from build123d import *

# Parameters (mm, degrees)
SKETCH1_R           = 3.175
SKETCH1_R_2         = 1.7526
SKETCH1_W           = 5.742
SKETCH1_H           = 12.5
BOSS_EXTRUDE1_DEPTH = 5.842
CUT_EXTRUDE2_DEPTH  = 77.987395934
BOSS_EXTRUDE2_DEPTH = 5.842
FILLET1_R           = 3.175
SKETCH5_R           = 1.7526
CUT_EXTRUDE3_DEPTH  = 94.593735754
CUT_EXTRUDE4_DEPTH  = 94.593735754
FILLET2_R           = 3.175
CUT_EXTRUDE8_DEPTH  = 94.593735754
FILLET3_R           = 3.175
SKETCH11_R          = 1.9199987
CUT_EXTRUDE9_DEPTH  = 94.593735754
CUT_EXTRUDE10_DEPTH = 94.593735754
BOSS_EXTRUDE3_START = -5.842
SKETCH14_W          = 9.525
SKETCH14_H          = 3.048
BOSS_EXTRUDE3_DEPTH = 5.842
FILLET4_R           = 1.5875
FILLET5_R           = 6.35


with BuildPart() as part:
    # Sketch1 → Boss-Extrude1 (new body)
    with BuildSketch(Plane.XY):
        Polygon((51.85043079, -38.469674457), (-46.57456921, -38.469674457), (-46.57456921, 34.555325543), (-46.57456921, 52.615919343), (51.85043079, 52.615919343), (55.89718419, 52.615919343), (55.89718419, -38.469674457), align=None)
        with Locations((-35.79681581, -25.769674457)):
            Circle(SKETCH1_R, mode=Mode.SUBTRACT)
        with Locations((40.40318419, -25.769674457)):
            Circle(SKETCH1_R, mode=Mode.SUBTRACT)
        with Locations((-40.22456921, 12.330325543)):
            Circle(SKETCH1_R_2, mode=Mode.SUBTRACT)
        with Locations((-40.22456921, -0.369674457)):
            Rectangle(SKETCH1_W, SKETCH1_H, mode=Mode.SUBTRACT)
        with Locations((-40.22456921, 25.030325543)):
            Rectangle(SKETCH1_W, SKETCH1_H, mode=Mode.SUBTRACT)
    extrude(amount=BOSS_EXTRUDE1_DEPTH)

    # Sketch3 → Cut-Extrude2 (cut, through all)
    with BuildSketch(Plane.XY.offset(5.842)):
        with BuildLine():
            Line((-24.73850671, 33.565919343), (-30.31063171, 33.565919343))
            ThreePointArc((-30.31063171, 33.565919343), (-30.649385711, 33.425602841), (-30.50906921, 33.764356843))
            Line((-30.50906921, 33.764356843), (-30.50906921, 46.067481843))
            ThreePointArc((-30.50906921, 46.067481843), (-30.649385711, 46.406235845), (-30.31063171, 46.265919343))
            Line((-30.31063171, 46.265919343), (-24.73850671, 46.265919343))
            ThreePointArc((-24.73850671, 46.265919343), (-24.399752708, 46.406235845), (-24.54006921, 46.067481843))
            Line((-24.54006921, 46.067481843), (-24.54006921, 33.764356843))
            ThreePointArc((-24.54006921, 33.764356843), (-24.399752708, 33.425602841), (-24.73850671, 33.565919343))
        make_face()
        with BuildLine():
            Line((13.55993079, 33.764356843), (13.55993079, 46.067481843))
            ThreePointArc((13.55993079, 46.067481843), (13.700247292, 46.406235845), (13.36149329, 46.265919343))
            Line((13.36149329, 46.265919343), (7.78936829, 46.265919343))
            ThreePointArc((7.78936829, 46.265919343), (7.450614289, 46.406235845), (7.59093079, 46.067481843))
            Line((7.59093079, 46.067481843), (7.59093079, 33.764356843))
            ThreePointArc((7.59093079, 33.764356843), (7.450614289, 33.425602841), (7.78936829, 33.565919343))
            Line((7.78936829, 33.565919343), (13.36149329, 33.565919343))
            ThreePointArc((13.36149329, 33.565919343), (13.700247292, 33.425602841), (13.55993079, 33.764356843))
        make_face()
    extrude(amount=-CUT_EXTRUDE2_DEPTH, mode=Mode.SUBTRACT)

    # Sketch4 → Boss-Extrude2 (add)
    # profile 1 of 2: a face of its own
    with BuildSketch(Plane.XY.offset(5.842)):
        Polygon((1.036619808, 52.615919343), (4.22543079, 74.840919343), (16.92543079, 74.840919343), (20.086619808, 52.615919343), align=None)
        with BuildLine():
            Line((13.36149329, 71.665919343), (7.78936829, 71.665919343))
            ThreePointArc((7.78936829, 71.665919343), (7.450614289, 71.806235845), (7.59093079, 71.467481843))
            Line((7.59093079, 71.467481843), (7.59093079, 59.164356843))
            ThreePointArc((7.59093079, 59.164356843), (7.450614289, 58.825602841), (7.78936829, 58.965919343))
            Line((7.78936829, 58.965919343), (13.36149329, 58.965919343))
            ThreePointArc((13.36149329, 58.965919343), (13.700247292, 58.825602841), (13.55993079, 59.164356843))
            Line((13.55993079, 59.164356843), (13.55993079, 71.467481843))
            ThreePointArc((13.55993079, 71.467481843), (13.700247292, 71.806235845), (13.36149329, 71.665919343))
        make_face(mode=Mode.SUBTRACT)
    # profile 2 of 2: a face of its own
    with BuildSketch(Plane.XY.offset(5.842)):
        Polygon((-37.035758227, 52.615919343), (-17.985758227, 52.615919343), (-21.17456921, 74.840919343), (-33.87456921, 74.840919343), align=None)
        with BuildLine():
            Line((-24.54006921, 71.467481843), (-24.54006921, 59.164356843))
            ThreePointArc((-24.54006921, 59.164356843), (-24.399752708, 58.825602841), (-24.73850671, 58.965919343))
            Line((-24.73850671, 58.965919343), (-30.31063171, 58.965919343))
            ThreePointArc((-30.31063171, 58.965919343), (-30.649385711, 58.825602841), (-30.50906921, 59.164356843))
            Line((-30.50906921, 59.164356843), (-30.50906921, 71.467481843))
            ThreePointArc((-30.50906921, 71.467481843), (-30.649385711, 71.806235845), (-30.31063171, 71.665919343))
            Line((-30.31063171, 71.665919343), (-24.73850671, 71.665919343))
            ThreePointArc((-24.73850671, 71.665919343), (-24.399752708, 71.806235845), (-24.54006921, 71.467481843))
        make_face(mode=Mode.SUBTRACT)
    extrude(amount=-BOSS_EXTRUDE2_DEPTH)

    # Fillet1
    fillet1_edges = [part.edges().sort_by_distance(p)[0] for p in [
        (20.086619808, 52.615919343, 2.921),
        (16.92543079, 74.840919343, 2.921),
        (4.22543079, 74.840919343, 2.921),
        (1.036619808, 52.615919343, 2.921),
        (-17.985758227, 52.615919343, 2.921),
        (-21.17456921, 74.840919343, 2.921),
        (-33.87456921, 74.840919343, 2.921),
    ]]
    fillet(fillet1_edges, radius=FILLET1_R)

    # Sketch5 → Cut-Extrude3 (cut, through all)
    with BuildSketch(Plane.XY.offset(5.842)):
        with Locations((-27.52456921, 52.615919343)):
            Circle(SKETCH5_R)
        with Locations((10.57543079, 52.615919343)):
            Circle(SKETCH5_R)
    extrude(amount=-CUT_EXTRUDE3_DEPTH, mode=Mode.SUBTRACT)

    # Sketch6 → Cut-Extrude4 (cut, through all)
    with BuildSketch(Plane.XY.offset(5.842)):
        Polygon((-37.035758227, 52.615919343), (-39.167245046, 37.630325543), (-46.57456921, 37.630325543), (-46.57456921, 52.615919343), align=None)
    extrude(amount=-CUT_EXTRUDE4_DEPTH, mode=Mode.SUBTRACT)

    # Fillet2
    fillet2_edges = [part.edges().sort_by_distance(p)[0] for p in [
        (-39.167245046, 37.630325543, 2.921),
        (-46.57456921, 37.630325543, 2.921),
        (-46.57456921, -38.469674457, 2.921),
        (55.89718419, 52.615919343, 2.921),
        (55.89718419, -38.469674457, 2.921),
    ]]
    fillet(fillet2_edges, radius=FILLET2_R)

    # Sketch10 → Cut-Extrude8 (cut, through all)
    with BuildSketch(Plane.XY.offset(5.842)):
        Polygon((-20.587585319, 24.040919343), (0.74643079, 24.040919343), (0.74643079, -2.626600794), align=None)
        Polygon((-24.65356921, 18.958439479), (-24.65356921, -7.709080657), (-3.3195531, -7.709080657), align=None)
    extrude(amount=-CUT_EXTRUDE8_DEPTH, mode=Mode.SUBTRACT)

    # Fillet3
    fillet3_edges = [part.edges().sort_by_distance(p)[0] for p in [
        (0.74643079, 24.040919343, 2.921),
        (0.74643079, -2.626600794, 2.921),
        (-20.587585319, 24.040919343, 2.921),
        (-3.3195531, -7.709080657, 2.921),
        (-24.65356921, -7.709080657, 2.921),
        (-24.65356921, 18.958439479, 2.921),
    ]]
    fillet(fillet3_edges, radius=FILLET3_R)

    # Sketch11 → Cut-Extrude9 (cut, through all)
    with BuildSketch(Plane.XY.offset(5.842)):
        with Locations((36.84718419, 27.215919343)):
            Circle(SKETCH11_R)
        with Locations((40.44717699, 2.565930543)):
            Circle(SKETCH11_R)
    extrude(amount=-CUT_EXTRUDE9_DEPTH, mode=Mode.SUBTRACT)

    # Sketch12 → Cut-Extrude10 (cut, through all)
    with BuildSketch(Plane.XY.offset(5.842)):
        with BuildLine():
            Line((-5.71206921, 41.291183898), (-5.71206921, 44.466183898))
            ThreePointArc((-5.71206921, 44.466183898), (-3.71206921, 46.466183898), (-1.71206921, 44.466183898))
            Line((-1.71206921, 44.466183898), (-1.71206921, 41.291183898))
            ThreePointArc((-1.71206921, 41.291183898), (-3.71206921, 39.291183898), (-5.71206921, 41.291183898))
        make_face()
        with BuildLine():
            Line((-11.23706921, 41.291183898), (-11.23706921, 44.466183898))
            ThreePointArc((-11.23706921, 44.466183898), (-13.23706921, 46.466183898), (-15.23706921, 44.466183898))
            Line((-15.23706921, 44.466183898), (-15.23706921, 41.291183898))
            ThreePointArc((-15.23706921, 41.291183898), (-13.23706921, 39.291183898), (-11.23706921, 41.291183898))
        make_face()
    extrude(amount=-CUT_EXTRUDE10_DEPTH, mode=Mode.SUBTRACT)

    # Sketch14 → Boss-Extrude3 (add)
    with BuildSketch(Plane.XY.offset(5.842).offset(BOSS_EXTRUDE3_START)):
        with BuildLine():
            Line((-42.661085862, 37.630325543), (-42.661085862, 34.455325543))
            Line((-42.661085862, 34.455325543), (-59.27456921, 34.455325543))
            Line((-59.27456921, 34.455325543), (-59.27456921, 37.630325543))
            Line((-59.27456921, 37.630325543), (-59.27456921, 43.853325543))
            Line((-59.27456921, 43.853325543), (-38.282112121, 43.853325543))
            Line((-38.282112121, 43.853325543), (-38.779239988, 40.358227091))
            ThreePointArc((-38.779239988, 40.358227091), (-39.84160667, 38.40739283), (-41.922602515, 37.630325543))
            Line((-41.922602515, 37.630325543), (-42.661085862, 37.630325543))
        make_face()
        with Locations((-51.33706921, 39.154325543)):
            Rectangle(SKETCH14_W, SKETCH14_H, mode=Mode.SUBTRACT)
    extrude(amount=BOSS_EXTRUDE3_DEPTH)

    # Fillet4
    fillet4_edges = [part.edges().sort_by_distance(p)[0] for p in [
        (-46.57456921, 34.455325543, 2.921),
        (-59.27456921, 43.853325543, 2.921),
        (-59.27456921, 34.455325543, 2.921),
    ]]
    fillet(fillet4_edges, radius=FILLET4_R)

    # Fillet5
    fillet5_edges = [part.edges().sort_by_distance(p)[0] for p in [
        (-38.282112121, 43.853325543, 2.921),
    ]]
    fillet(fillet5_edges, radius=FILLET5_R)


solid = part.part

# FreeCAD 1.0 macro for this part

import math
import FreeCAD as App
import Part
import Sketcher

V = App.Vector
Q = App.Units.Quantity


def edges_at(feature, points):
    """Names of the edges that pass closest to the given points."""
    edges = feature.Shape.Edges
    near = lambda p: min(range(len(edges)), key=lambda i: edges[i].distToShape(Part.Vertex(*p))[0])
    return sorted({f"Edge{near(p) + 1}" for p in points})


def add_polygon(sketch, points):
    """Adds a closed chain of lines whose ends are joined by coincident constraints."""
    first, n = sketch.GeometryCount, len(points)
    for a, b in zip(points, points[1:] + points[:1]):
        sketch.addGeometry(Part.LineSegment(App.Vector(*a, 0), App.Vector(*b, 0)), False)
    for i in range(n):
        sketch.addConstraint(Sketcher.Constraint("Coincident", first + i, 2, first + (i + 1) % n, 1))

doc = App.newDocument("Part")
body = doc.addObject("PartDesign::Body", "Body")

sketch1 = doc.addObject("Sketcher::SketchObject", "Sketch")
body.addObject(sketch1)
sketch1.AttachmentSupport = (doc.XY_Plane, [""])
sketch1.MapMode = "FlatFace"
add_polygon(sketch1, [(-46.6, -38.5), (55.9, -38.5), (55.9, 52.6), (-46.6, 52.6)])
sketch1.addGeometry(Part.Circle(V(40.4, -25.8, 0), V(0, 0, 1), 3.2), False)
sketch1.addGeometry(Part.Circle(V(-35.8, -25.8, 0), V(0, 0, 1), 3.2), False)
add_polygon(sketch1, [(-43.1, -6.6), (-43.1, 5.9), (-37.4, 5.9), (-37.4, -6.6)])
sketch1.addGeometry(Part.Circle(V(-40.2, 12.3, 0), V(0, 0, 1), 1.8), False)
add_polygon(sketch1, [(-43.1, 18.8), (-43.1, 31.3), (-37.4, 31.3), (-37.4, 18.8)])
sketch1.addConstraint(Sketcher.Constraint("Horizontal", 0))
sketch1.addConstraint(Sketcher.Constraint("Vertical", 1))
sketch1.addConstraint(Sketcher.Constraint("Horizontal", 2))
sketch1.addConstraint(Sketcher.Constraint("Vertical", 3))
sketch1.addConstraint(Sketcher.Constraint("Vertical", 6))
sketch1.addConstraint(Sketcher.Constraint("Horizontal", 7))
sketch1.addConstraint(Sketcher.Constraint("Vertical", 8))
sketch1.addConstraint(Sketcher.Constraint("Horizontal", 9))
sketch1.addConstraint(Sketcher.Constraint("Vertical", 11))
sketch1.addConstraint(Sketcher.Constraint("Horizontal", 12))
sketch1.addConstraint(Sketcher.Constraint("Vertical", 13))
sketch1.addConstraint(Sketcher.Constraint("Horizontal", 14))
sketch1.addConstraint(Sketcher.Constraint("Equal", 4, 5))
sketch1.addConstraint(Sketcher.Constraint("Horizontal", 4, 3, 5, 3))
sketch1.addConstraint(Sketcher.Constraint("Vertical", 9, 2, 11, 2))
sketch1.addConstraint(Sketcher.Constraint("Vertical", 8, 2, 12, 2))
sketch1.addConstraint(Sketcher.Constraint("Equal", 8, 11))
sketch1.addConstraint(Sketcher.Constraint("Diameter", 4, Q("0.25 in")))
sketch1.addConstraint(Sketcher.Constraint("Diameter", 10, Q("0.138 in")))
sketch1.addConstraint(Sketcher.Constraint("DistanceX", 5, 3, 4, 3, Q("3 in")))
sketch1.addConstraint(Sketcher.Constraint("DistanceY", 0, 2, 10, 3, Q("2 in")))
sketch1.addConstraint(Sketcher.Constraint("DistanceY", 6, 2, 11, 2, Q("1 in")))
sketch1.addConstraint(Sketcher.Constraint("DistanceY", 5, 3, 10, 3, Q("1.5 in")))
sketch1.addConstraint(Sketcher.Constraint("DistanceX", 4, 3, 0, 2, Q("0.61 in")))
sketch1.addConstraint(Sketcher.Constraint("DistanceX", 2, 2, 10, 3, Q("0.25 in")))
sketch1.addConstraint(Sketcher.Constraint("DistanceX", 7, 1, 7, 2, Q("5.742 mm")))
sketch1.addConstraint(Sketcher.Constraint("DistanceY", 6, 1, 6, 2, Q("12.5 mm")))
sketch1.addConstraint(Sketcher.Constraint("DistanceX", 6, 2, 10, 3, Q("2.871 mm")))
sketch1.addConstraint(Sketcher.Constraint("DistanceY", 6, 2, 10, 3, Q("6.45 mm")))
sketch1.addConstraint(Sketcher.Constraint("DistanceX", 0, 1, 0, 2, Q("102.471753 mm")))
sketch1.addConstraint(Sketcher.Constraint("DistanceY", 1, 1, 1, 2, Q("91.085594 mm")))
sketch1.addConstraint(Sketcher.Constraint("DistanceX", 10, 3, -1, 1, Q("40.224569 mm")))
sketch1.addConstraint(Sketcher.Constraint("DistanceY", -1, 1, 1, 2, Q("52.615919 mm")))
pad1 = doc.addObject("PartDesign::Pad", "Pad")
body.addObject(pad1)
pad1.Profile = sketch1
pad1.Length = Q("0.23 in")

sketch2 = doc.addObject("Sketcher::SketchObject", "Sketch001")
body.addObject(sketch2)
sketch2.AttachmentSupport = (doc.XY_Plane, [""])
sketch2.MapMode = "FlatFace"
sketch2.AttachmentOffset = App.Placement(V(0, 0, 0.23 * 25.4), App.Rotation())
sketch2.addGeometry(Part.LineSegment(V(-30.31, 33.57, 0), V(-24.74, 33.57, 0)), False)
sketch2.addGeometry(Part.ArcOfCircle(Part.Circle(V(-24.54, 33.57, 0), V(0, 0, 1), 0.2), math.radians(180), math.radians(450)), False)
sketch2.addGeometry(Part.LineSegment(V(-24.54, 33.76, 0), V(-24.54, 46.07, 0)), False)
sketch2.addGeometry(Part.ArcOfCircle(Part.Circle(V(-24.54, 46.27, 0), V(0, 0, 1), 0.2), math.radians(-90), math.radians(180)), False)
sketch2.addGeometry(Part.LineSegment(V(-24.74, 46.27, 0), V(-30.31, 46.27, 0)), False)
sketch2.addGeometry(Part.ArcOfCircle(Part.Circle(V(-30.51, 46.27, 0), V(0, 0, 1), 0.2), math.radians(0), math.radians(270)), False)
sketch2.addGeometry(Part.LineSegment(V(-30.51, 46.07, 0), V(-30.51, 33.76, 0)), False)
sketch2.addGeometry(Part.ArcOfCircle(Part.Circle(V(-30.51, 33.57, 0), V(0, 0, 1), 0.2), math.radians(90), math.radians(360)), False)
sketch2.addGeometry(Part.LineSegment(V(13.56, 33.76, 0), V(13.56, 46.07, 0)), False)
sketch2.addGeometry(Part.ArcOfCircle(Part.Circle(V(13.56, 46.27, 0), V(0, 0, 1), 0.2), math.radians(-90), math.radians(180)), False)
sketch2.addGeometry(Part.LineSegment(V(13.36, 46.27, 0), V(7.79, 46.27, 0)), False)
sketch2.addGeometry(Part.ArcOfCircle(Part.Circle(V(7.59, 46.27, 0), V(0, 0, 1), 0.2), math.radians(0), math.radians(270)), False)
sketch2.addGeometry(Part.LineSegment(V(7.59, 46.07, 0), V(7.59, 33.76, 0)), False)
sketch2.addGeometry(Part.ArcOfCircle(Part.Circle(V(7.59, 33.57, 0), V(0, 0, 1), 0.2), math.radians(90), math.radians(360)), False)
sketch2.addGeometry(Part.LineSegment(V(7.79, 33.57, 0), V(13.36, 33.57, 0)), False)
sketch2.addGeometry(Part.ArcOfCircle(Part.Circle(V(13.56, 33.57, 0), V(0, 0, 1), 0.2), math.radians(180), math.radians(450)), False)
sketch2.addConstraint(Sketcher.Constraint("Coincident", 0, 2, 1, 1))
sketch2.addConstraint(Sketcher.Constraint("Coincident", 1, 2, 2, 1))
sketch2.addConstraint(Sketcher.Constraint("Coincident", 2, 2, 3, 1))
sketch2.addConstraint(Sketcher.Constraint("Coincident", 3, 2, 4, 1))
sketch2.addConstraint(Sketcher.Constraint("Coincident", 4, 2, 5, 1))
sketch2.addConstraint(Sketcher.Constraint("Coincident", 5, 2, 6, 1))
sketch2.addConstraint(Sketcher.Constraint("Coincident", 6, 2, 7, 1))
sketch2.addConstraint(Sketcher.Constraint("Coincident", 7, 2, 0, 1))
sketch2.addConstraint(Sketcher.Constraint("Coincident", 8, 2, 9, 1))
sketch2.addConstraint(Sketcher.Constraint("Coincident", 9, 2, 10, 1))
sketch2.addConstraint(Sketcher.Constraint("Coincident", 10, 2, 11, 1))
sketch2.addConstraint(Sketcher.Constraint("Coincident", 11, 2, 12, 1))
sketch2.addConstraint(Sketcher.Constraint("Coincident", 12, 2, 13, 1))
sketch2.addConstraint(Sketcher.Constraint("Coincident", 13, 2, 14, 1))
sketch2.addConstraint(Sketcher.Constraint("Coincident", 14, 2, 15, 1))
sketch2.addConstraint(Sketcher.Constraint("Coincident", 15, 2, 8, 1))
sketch2.addConstraint(Sketcher.Constraint("Horizontal", 0))
sketch2.addConstraint(Sketcher.Constraint("Vertical", 2))
sketch2.addConstraint(Sketcher.Constraint("Horizontal", 4))
sketch2.addConstraint(Sketcher.Constraint("Vertical", 6))
sketch2.addConstraint(Sketcher.Constraint("Vertical", 8))
sketch2.addConstraint(Sketcher.Constraint("Horizontal", 10))
sketch2.addConstraint(Sketcher.Constraint("Vertical", 12))
sketch2.addConstraint(Sketcher.Constraint("Horizontal", 14))
sketch2.addConstraint(Sketcher.Constraint("Equal", 1, 3))
sketch2.addConstraint(Sketcher.Constraint("Equal", 3, 5))
sketch2.addConstraint(Sketcher.Constraint("Equal", 5, 7))
sketch2.addConstraint(Sketcher.Constraint("Equal", 7, 9))
sketch2.addConstraint(Sketcher.Constraint("Equal", 9, 11))
sketch2.addConstraint(Sketcher.Constraint("Equal", 11, 13))
sketch2.addConstraint(Sketcher.Constraint("Equal", 13, 15))
sketch2.addConstraint(Sketcher.Constraint("Horizontal", 3, 3, 5, 3))
sketch2.addConstraint(Sketcher.Constraint("Horizontal", 1, 3, 7, 3))
sketch2.addConstraint(Sketcher.Constraint("Horizontal", 5, 3, 9, 3))
sketch2.addConstraint(Sketcher.Constraint("Horizontal", 9, 3, 11, 3))
sketch2.addConstraint(Sketcher.Constraint("Horizontal", 7, 3, 13, 3))
sketch2.addConstraint(Sketcher.Constraint("Horizontal", 13, 3, 15, 3))
sketch2.addConstraint(Sketcher.Constraint("Horizontal", 15, 3, 0, 2))
sketch2.addConstraint(Sketcher.Constraint("Horizontal", 11, 3, 3, 2))
sketch2.addConstraint(Sketcher.Constraint("Horizontal", 4, 2, 9, 2))
sketch2.addConstraint(Sketcher.Constraint("Horizontal", 7, 2, 13, 2))
sketch2.addConstraint(Sketcher.Constraint("Vertical", 1, 3, 3, 3))
sketch2.addConstraint(Sketcher.Constraint("Vertical", 5, 3, 7, 3))
sketch2.addConstraint(Sketcher.Constraint("Vertical", 11, 3, 13, 3))
sketch2.addConstraint(Sketcher.Constraint("Vertical", 9, 3, 15, 3))
sketch2.addConstraint(Sketcher.Constraint("Vertical", 3, 3, 1, 2))
sketch2.addConstraint(Sketcher.Constraint("Vertical", 7, 3, 5, 2))
sketch2.addConstraint(Sketcher.Constraint("Vertical", 15, 3, 8, 2))
sketch2.addConstraint(Sketcher.Constraint("Vertical", 13, 3, 11, 2))
sketch2.addConstraint(Sketcher.Constraint("Equal", 4, 10))
sketch2.addConstraint(Sketcher.Constraint("DistanceY", 1, 3, 3, 3, Q("0.5 in")))
sketch2.addConstraint(Sketcher.Constraint("DistanceX", 3, 3, 9, 3, Q("1.5 in")))
sketch2.addConstraint(Sketcher.Constraint("DistanceY", 2, 1, 2, 2, Q("0.484375 in")))
sketch2.addConstraint(Sketcher.Constraint("DistanceX", 5, 3, 3, 3, Q("0.235 in")))
sketch2.addConstraint(Sketcher.Constraint("DistanceX", 1, 3, -1, 1, Q("24.540069 mm")))
sketch2.addConstraint(Sketcher.Constraint("DistanceY", -1, 1, 1, 3, Q("33.565919 mm")))
pocket1 = doc.addObject("PartDesign::Pocket", "Pocket")
body.addObject(pocket1)
pocket1.Profile = sketch2
pocket1.Type = "ThroughAll"

sketch3 = doc.addObject("Sketcher::SketchObject", "Sketch002")
body.addObject(sketch3)
sketch3.AttachmentSupport = (doc.XY_Plane, [""])
sketch3.MapMode = "FlatFace"
sketch3.AttachmentOffset = App.Placement(V(0, 0, 0.23 * 25.4), App.Rotation())
add_polygon(sketch3, [(4.23, 74.84), (1.04, 52.62), (20.09, 52.62), (16.93, 74.84)])
sketch3.addGeometry(Part.ArcOfCircle(Part.Circle(V(13.56, 71.67, 0), V(0, 0, 1), 0.2), math.radians(-90), math.radians(180)), False)
sketch3.addGeometry(Part.LineSegment(V(13.56, 71.47, 0), V(13.56, 59.16, 0)), False)
sketch3.addGeometry(Part.ArcOfCircle(Part.Circle(V(13.56, 58.97, 0), V(0, 0, 1), 0.2), math.radians(180), math.radians(450)), False)
sketch3.addGeometry(Part.LineSegment(V(13.36, 58.97, 0), V(7.79, 58.97, 0)), False)
sketch3.addGeometry(Part.ArcOfCircle(Part.Circle(V(7.59, 58.97, 0), V(0, 0, 1), 0.2), math.radians(90), math.radians(360)), False)
sketch3.addGeometry(Part.LineSegment(V(7.59, 59.16, 0), V(7.59, 71.47, 0)), False)
sketch3.addGeometry(Part.ArcOfCircle(Part.Circle(V(7.59, 71.67, 0), V(0, 0, 1), 0.2), math.radians(0), math.radians(270)), False)
sketch3.addGeometry(Part.LineSegment(V(7.79, 71.67, 0), V(13.36, 71.67, 0)), False)
add_polygon(sketch3, [(-37.04, 52.62), (-17.99, 52.62), (-21.17, 74.84), (-33.87, 74.84)])
sketch3.addGeometry(Part.ArcOfCircle(Part.Circle(V(-24.54, 71.67, 0), V(0, 0, 1), 0.2), math.radians(-90), math.radians(180)), False)
sketch3.addGeometry(Part.LineSegment(V(-24.54, 71.47, 0), V(-24.54, 59.16, 0)), False)
sketch3.addGeometry(Part.ArcOfCircle(Part.Circle(V(-24.54, 58.97, 0), V(0, 0, 1), 0.2), math.radians(180), math.radians(450)), False)
sketch3.addGeometry(Part.LineSegment(V(-24.74, 58.97, 0), V(-30.31, 58.97, 0)), False)
sketch3.addGeometry(Part.ArcOfCircle(Part.Circle(V(-30.51, 58.97, 0), V(0, 0, 1), 0.2), math.radians(90), math.radians(360)), False)
sketch3.addGeometry(Part.LineSegment(V(-30.51, 59.16, 0), V(-30.51, 71.47, 0)), False)
sketch3.addGeometry(Part.ArcOfCircle(Part.Circle(V(-30.51, 71.67, 0), V(0, 0, 1), 0.2), math.radians(0), math.radians(270)), False)
sketch3.addGeometry(Part.LineSegment(V(-30.31, 71.67, 0), V(-24.74, 71.67, 0)), False)
sketch3.addConstraint(Sketcher.Constraint("Coincident", 4, 1, 5, 1))
sketch3.addConstraint(Sketcher.Constraint("Coincident", 5, 2, 6, 2))
sketch3.addConstraint(Sketcher.Constraint("Coincident", 6, 1, 7, 1))
sketch3.addConstraint(Sketcher.Constraint("Coincident", 7, 2, 8, 2))
sketch3.addConstraint(Sketcher.Constraint("Coincident", 8, 1, 9, 1))
sketch3.addConstraint(Sketcher.Constraint("Coincident", 9, 2, 10, 2))
sketch3.addConstraint(Sketcher.Constraint("Coincident", 10, 1, 11, 1))
sketch3.addConstraint(Sketcher.Constraint("Coincident", 11, 2, 4, 2))
sketch3.addConstraint(Sketcher.Constraint("Coincident", 16, 1, 17, 1))
sketch3.addConstraint(Sketcher.Constraint("Coincident", 17, 2, 18, 2))
sketch3.addConstraint(Sketcher.Constraint("Coincident", 18, 1, 19, 1))
sketch3.addConstraint(Sketcher.Constraint("Coincident", 19, 2, 20, 2))
sketch3.addConstraint(Sketcher.Constraint("Coincident", 20, 1, 21, 1))
sketch3.addConstraint(Sketcher.Constraint("Coincident", 21, 2, 22, 2))
sketch3.addConstraint(Sketcher.Constraint("Coincident", 22, 1, 23, 1))
sketch3.addConstraint(Sketcher.Constraint("Coincident", 23, 2, 16, 2))
sketch3.addConstraint(Sketcher.Constraint("Horizontal", 1))
sketch3.addConstraint(Sketcher.Constraint("Horizontal", 3))
sketch3.addConstraint(Sketcher.Constraint("Vertical", 5))
sketch3.addConstraint(Sketcher.Constraint("Horizontal", 7))
sketch3.addConstraint(Sketcher.Constraint("Vertical", 9))
sketch3.addConstraint(Sketcher.Constraint("Horizontal", 11))
sketch3.addConstraint(Sketcher.Constraint("Horizontal", 12))
sketch3.addConstraint(Sketcher.Constraint("Horizontal", 14))
sketch3.addConstraint(Sketcher.Constraint("Vertical", 17))
sketch3.addConstraint(Sketcher.Constraint("Horizontal", 19))
sketch3.addConstraint(Sketcher.Constraint("Vertical", 21))
sketch3.addConstraint(Sketcher.Constraint("Horizontal", 23))
sketch3.addConstraint(Sketcher.Constraint("Equal", 4, 6))
sketch3.addConstraint(Sketcher.Constraint("Equal", 6, 8))
sketch3.addConstraint(Sketcher.Constraint("Equal", 8, 10))
sketch3.addConstraint(Sketcher.Constraint("Equal", 10, 16))
sketch3.addConstraint(Sketcher.Constraint("Equal", 16, 18))
sketch3.addConstraint(Sketcher.Constraint("Equal", 18, 20))
sketch3.addConstraint(Sketcher.Constraint("Equal", 20, 22))
sketch3.addConstraint(Sketcher.Constraint("Horizontal", 6, 3, 8, 3))
sketch3.addConstraint(Sketcher.Constraint("Horizontal", 4, 3, 10, 3))
sketch3.addConstraint(Sketcher.Constraint("Horizontal", 10, 3, 16, 3))
sketch3.addConstraint(Sketcher.Constraint("Horizontal", 8, 3, 18, 3))
sketch3.addConstraint(Sketcher.Constraint("Horizontal", 18, 3, 20, 3))
sketch3.addConstraint(Sketcher.Constraint("Horizontal", 16, 3, 22, 3))
sketch3.addConstraint(Sketcher.Constraint("Horizontal", 20, 3, 6, 1))
sketch3.addConstraint(Sketcher.Constraint("Horizontal", 22, 3, 10, 1))
sketch3.addConstraint(Sketcher.Constraint("Horizontal", 1, 2, 12, 2))
sketch3.addConstraint(Sketcher.Constraint("Horizontal", 3, 2, 13, 2))
sketch3.addConstraint(Sketcher.Constraint("Horizontal", 7, 2, 18, 1))
sketch3.addConstraint(Sketcher.Constraint("Horizontal", 11, 2, 22, 1))
sketch3.addConstraint(Sketcher.Constraint("Vertical", 4, 3, 6, 3))
sketch3.addConstraint(Sketcher.Constraint("Vertical", 8, 3, 10, 3))
sketch3.addConstraint(Sketcher.Constraint("Vertical", 16, 3, 18, 3))
sketch3.addConstraint(Sketcher.Constraint("Vertical", 20, 3, 22, 3))
sketch3.addConstraint(Sketcher.Constraint("Vertical", 6, 3, 4, 1))
sketch3.addConstraint(Sketcher.Constraint("Vertical", 10, 3, 8, 1))
sketch3.addConstraint(Sketcher.Constraint("Vertical", 18, 3, 16, 1))
sketch3.addConstraint(Sketcher.Constraint("Vertical", 22, 3, 20, 1))
sketch3.addConstraint(Sketcher.Constraint("Equal", 1, 12))
sketch3.addConstraint(Sketcher.Constraint("Equal", 3, 14))
sketch3.addConstraint(Sketcher.Constraint("Equal", 11, 19))
sketch3.addConstraint(Sketcher.Constraint("Equal", 0, 13))
sketch3.addConstraint(Sketcher.Constraint("DistanceX", 3, 2, 3, 1, Q("0.5 in")))
sketch3.addConstraint(Sketcher.Constraint("DistanceX", 1, 1, 1, 2, Q("0.75 in")))
sketch3.addConstraint(Sketcher.Constraint("DistanceY", 6, 3, 4, 3, Q("0.5 in")))
sketch3.addConstraint(Sketcher.Constraint("DistanceX", 16, 3, 4, 3, Q("1.5 in")))
sketch3.addConstraint(Sketcher.Constraint("DistanceY", 5, 2, 5, 1, Q("0.484375 in")))
sketch3.addConstraint(Sketcher.Constraint("DistanceY", 0, 2, 8, 3, Q("0.25 in")))
sketch3.addConstraint(Sketcher.Constraint("DistanceX", 8, 3, 6, 3, Q("0.235 in")))
sketch3.addConstraint(Sketcher.Constraint("DistanceY", 4, 3, 2, 2, Q("0.125 in")))
sketch3.addConstraint(Sketcher.Constraint("DistanceX", 4, 3, 2, 2, Q("0.1325 in")))
sketch3.addConstraint(Sketcher.Constraint("DistanceX", 16, 3, 13, 2, Q("0.1325 in")))
sketch3.addConstraint(Sketcher.Constraint("Distance", 2, Q("22.448691 mm")))
sketch3.addConstraint(Sketcher.Constraint("DistanceX", -1, 1, 4, 3, Q("13.559931 mm")))
sketch3.addConstraint(Sketcher.Constraint("DistanceY", -1, 1, 4, 3, Q("71.665919 mm")))
pad2 = doc.addObject("PartDesign::Pad", "Pad001")
body.addObject(pad2)
pad2.Profile = sketch3
pad2.Length = Q("0.23 in")
pad2.Reversed = True
doc.recompute()

fillet = doc.addObject("PartDesign::Fillet", "Fillet")
body.addObject(fillet)
fillet.Base = (pad2, edges_at(pad2, [
    (20.087, 52.616, 2.921),
    (16.925, 74.841, 2.921),
    (4.225, 74.841, 2.921),
    (1.037, 52.616, 2.921),
    (-17.986, 52.616, 2.921),
    (-21.175, 74.841, 2.921),
    (-33.875, 74.841, 2.921),
]))
fillet.Radius = Q("0.125 in")

sketch4 = doc.addObject("Sketcher::SketchObject", "Sketch003")
body.addObject(sketch4)
sketch4.AttachmentSupport = (doc.XY_Plane, [""])
sketch4.MapMode = "FlatFace"
sketch4.AttachmentOffset = App.Placement(V(0, 0, 0.23 * 25.4), App.Rotation())
sketch4.addGeometry(Part.Circle(V(-27.5, 52.6, 0), V(0, 0, 1), 1.8), False)
sketch4.addGeometry(Part.Circle(V(10.6, 52.6, 0), V(0, 0, 1), 1.8), False)
sketch4.addConstraint(Sketcher.Constraint("Equal", 0, 1))
sketch4.addConstraint(Sketcher.Constraint("Horizontal", 0, 3, 1, 3))
sketch4.addConstraint(Sketcher.Constraint("Diameter", 0, Q("0.138 in")))
sketch4.addConstraint(Sketcher.Constraint("DistanceX", 0, 3, 1, 3, Q("1.5 in")))
sketch4.addConstraint(Sketcher.Constraint("DistanceX", 0, 3, -1, 1, Q("27.524569 mm")))
sketch4.addConstraint(Sketcher.Constraint("DistanceY", -1, 1, 0, 3, Q("52.615919 mm")))
pocket2 = doc.addObject("PartDesign::Pocket", "Pocket001")
body.addObject(pocket2)
pocket2.Profile = sketch4
pocket2.Type = "ThroughAll"

sketch5 = doc.addObject("Sketcher::SketchObject", "Sketch004")
body.addObject(sketch5)
sketch5.AttachmentSupport = (doc.XY_Plane, [""])
sketch5.MapMode = "FlatFace"
sketch5.AttachmentOffset = App.Placement(V(0, 0, 0.23 * 25.4), App.Rotation())
add_polygon(sketch5, [(-39, 38), (-37, 53), (-47, 53), (-47, 38)])
sketch5.addConstraint(Sketcher.Constraint("Horizontal", 1))
sketch5.addConstraint(Sketcher.Constraint("Vertical", 2))
sketch5.addConstraint(Sketcher.Constraint("Horizontal", 3))
sketch5.addConstraint(Sketcher.Constraint("DistanceX", 1, 2, 1, 1, Q("9.538811 mm")))
sketch5.addConstraint(Sketcher.Constraint("Distance", 0, Q("15.136422 mm")))
sketch5.addConstraint(Sketcher.Constraint("DistanceX", 3, 1, 3, 2, Q("7.407324 mm")))
sketch5.addConstraint(Sketcher.Constraint("DistanceX", 0, 2, -1, 1, Q("37.035758 mm")))
sketch5.addConstraint(Sketcher.Constraint("DistanceY", -1, 1, 0, 2, Q("52.615919 mm")))
pocket3 = doc.addObject("PartDesign::Pocket", "Pocket002")
body.addObject(pocket3)
pocket3.Profile = sketch5
pocket3.Type = "ThroughAll"
doc.recompute()

fillet2 = doc.addObject("PartDesign::Fillet", "Fillet001")
body.addObject(fillet2)
fillet2.Base = (pocket3, edges_at(pocket3, [
    (-39.167, 37.63, 2.921),
    (-46.575, 37.63, 2.921),
    (-46.575, -38.47, 2.921),
    (55.897, 52.616, 2.921),
    (55.897, -38.47, 2.921),
]))
fillet2.Radius = Q("0.125 in")

sketch6 = doc.addObject("Sketcher::SketchObject", "Sketch005")
body.addObject(sketch6)
sketch6.AttachmentSupport = (doc.XY_Plane, [""])
sketch6.MapMode = "FlatFace"
sketch6.AttachmentOffset = App.Placement(V(0, 0, 0.23 * 25.4), App.Rotation())
add_polygon(sketch6, [(1, 24), (-21, 24), (1, -3)])
add_polygon(sketch6, [(-25, 19), (-25, -8), (-3, -8)])
sketch6.addConstraint(Sketcher.Constraint("Horizontal", 0))
sketch6.addConstraint(Sketcher.Constraint("Vertical", 2))
sketch6.addConstraint(Sketcher.Constraint("Vertical", 3))
sketch6.addConstraint(Sketcher.Constraint("Horizontal", 4))
sketch6.addConstraint(Sketcher.Constraint("Parallel", 1, 5))
sketch6.addConstraint(Sketcher.Constraint("Equal", 0, 4))
sketch6.addConstraint(Sketcher.Constraint("DistanceX", 3, 2, 1, 2, Q("1 in")))
sketch6.addConstraint(Sketcher.Constraint("DistanceY", 3, 2, 0, 2, Q("1.25 in")))
sketch6.addConstraint(Sketcher.Constraint("DistanceY", 2, 1, 2, 2, Q("26.66752 mm")))
sketch6.addConstraint(Sketcher.Constraint("DistanceY", 1, 2, -1, 1, Q("2.626601 mm")))
sketch6.addConstraint(Sketcher.Constraint("Distance", 1, Q("34.151089 mm")))
sketch6.addConstraint(Sketcher.Constraint("DistanceX", -1, 1, 1, 2, Q("0.746431 mm")))
pocket4 = doc.addObject("PartDesign::Pocket", "Pocket003")
body.addObject(pocket4)
pocket4.Profile = sketch6
pocket4.Type = "ThroughAll"
doc.recompute()

fillet3 = doc.addObject("PartDesign::Fillet", "Fillet002")
body.addObject(fillet3)
fillet3.Base = (pocket4, edges_at(pocket4, [
    (0.746, 24.041, 2.921),
    (0.746, -2.627, 2.921),
    (-20.588, 24.041, 2.921),
    (-3.32, -7.709, 2.921),
    (-24.654, -7.709, 2.921),
    (-24.654, 18.958, 2.921),
]))
fillet3.Radius = Q("0.125 in")

sketch7 = doc.addObject("Sketcher::SketchObject", "Sketch006")
body.addObject(sketch7)
sketch7.AttachmentSupport = (doc.XY_Plane, [""])
sketch7.MapMode = "FlatFace"
sketch7.AttachmentOffset = App.Placement(V(0, 0, 0.23 * 25.4), App.Rotation())
sketch7.addGeometry(Part.Circle(V(36.8, 27.2, 0), V(0, 0, 1), 1.9), False)
sketch7.addGeometry(Part.Circle(V(40.4, 2.6, 0), V(0, 0, 1), 1.9), False)
sketch7.addConstraint(Sketcher.Constraint("Equal", 0, 1))
sketch7.addConstraint(Sketcher.Constraint("Diameter", 0, Q("3.839997 mm")))
sketch7.addConstraint(Sketcher.Constraint("DistanceY", -1, 1, 0, 3, Q("27.215919 mm")))
sketch7.addConstraint(Sketcher.Constraint("DistanceY", -1, 1, 1, 3, Q("2.565931 mm")))
sketch7.addConstraint(Sketcher.Constraint("DistanceX", -1, 1, 0, 3, Q("36.847184 mm")))
sketch7.addConstraint(Sketcher.Constraint("DistanceX", -1, 1, 1, 3, Q("40.447177 mm")))
pocket5 = doc.addObject("PartDesign::Pocket", "Pocket004")
body.addObject(pocket5)
pocket5.Profile = sketch7
pocket5.Type = "ThroughAll"

sketch8 = doc.addObject("Sketcher::SketchObject", "Sketch007")
body.addObject(sketch8)
sketch8.AttachmentSupport = (doc.XY_Plane, [""])
sketch8.MapMode = "FlatFace"
sketch8.AttachmentOffset = App.Placement(V(0, 0, 0.23 * 25.4), App.Rotation())
sketch8.addGeometry(Part.LineSegment(V(-5.7, 44.5, 0), V(-5.7, 41.3, 0)), False)
sketch8.addGeometry(Part.ArcOfCircle(Part.Circle(V(-3.7, 41.3, 0), V(0, 0, 1), 2), math.radians(180), math.radians(360)), False)
sketch8.addGeometry(Part.LineSegment(V(-1.7, 41.3, 0), V(-1.7, 44.5, 0)), False)
sketch8.addGeometry(Part.ArcOfCircle(Part.Circle(V(-3.7, 44.5, 0), V(0, 0, 1), 2), math.radians(0), math.radians(180)), False)
sketch8.addGeometry(Part.LineSegment(V(-11.2, 41.3, 0), V(-11.2, 44.5, 0)), False)
sketch8.addGeometry(Part.ArcOfCircle(Part.Circle(V(-13.2, 44.5, 0), V(0, 0, 1), 2), math.radians(0), math.radians(180)), False)
sketch8.addGeometry(Part.LineSegment(V(-15.2, 44.5, 0), V(-15.2, 41.3, 0)), False)
sketch8.addGeometry(Part.ArcOfCircle(Part.Circle(V(-13.2, 41.3, 0), V(0, 0, 1), 2), math.radians(180), math.radians(360)), False)
sketch8.addConstraint(Sketcher.Constraint("Tangent", 0, 2, 1, 1))
sketch8.addConstraint(Sketcher.Constraint("Tangent", 1, 2, 2, 1))
sketch8.addConstraint(Sketcher.Constraint("Tangent", 2, 2, 3, 1))
sketch8.addConstraint(Sketcher.Constraint("Tangent", 3, 2, 0, 1))
sketch8.addConstraint(Sketcher.Constraint("Tangent", 4, 2, 5, 1))
sketch8.addConstraint(Sketcher.Constraint("Tangent", 5, 2, 6, 1))
sketch8.addConstraint(Sketcher.Constraint("Tangent", 6, 2, 7, 1))
sketch8.addConstraint(Sketcher.Constraint("Tangent", 7, 2, 4, 1))
sketch8.addConstraint(Sketcher.Constraint("Vertical", 0))
sketch8.addConstraint(Sketcher.Constraint("Vertical", 2))
sketch8.addConstraint(Sketcher.Constraint("Vertical", 4))
sketch8.addConstraint(Sketcher.Constraint("Vertical", 6))
sketch8.addConstraint(Sketcher.Constraint("Equal", 3, 5))
sketch8.addConstraint(Sketcher.Constraint("Horizontal", 3, 3, 5, 3))
sketch8.addConstraint(Sketcher.Constraint("Horizontal", 1, 3, 7, 3))
sketch8.addConstraint(Sketcher.Constraint("DistanceY", 0, 2, 0, 1, Q("0.125 in")))
sketch8.addConstraint(Sketcher.Constraint("Radius", 1, Q("2 mm")))
sketch8.addConstraint(Sketcher.Constraint("DistanceX", 5, 3, 3, 3, Q("0.375 in")))
sketch8.addConstraint(Sketcher.Constraint("DistanceX", 1, 3, -1, 1, Q("3.712069 mm")))
sketch8.addConstraint(Sketcher.Constraint("DistanceY", -1, 1, 1, 3, Q("41.291184 mm")))
pocket6 = doc.addObject("PartDesign::Pocket", "Pocket005")
body.addObject(pocket6)
pocket6.Profile = sketch8
pocket6.Type = "ThroughAll"

sketch9 = doc.addObject("Sketcher::SketchObject", "Sketch008")
body.addObject(sketch9)
sketch9.AttachmentSupport = (doc.XY_Plane, [""])
sketch9.MapMode = "FlatFace"
sketch9.addGeometry(Part.LineSegment(V(-42.7, 34.5, 0), V(-42.7, 37.6, 0)), False)
sketch9.addGeometry(Part.LineSegment(V(-42.7, 37.6, 0), V(-41.9, 37.6, 0)), False)
sketch9.addGeometry(Part.ArcOfCircle(Part.Circle(V(-41.9, 40.8, 0), V(0, 0, 1), 3.2), math.radians(-90), math.radians(-8)), False)
sketch9.addGeometry(Part.LineSegment(V(-38.8, 40.4, 0), V(-38.3, 43.9, 0)), False)
sketch9.addGeometry(Part.LineSegment(V(-38.3, 43.9, 0), V(-59.3, 43.9, 0)), False)
sketch9.addGeometry(Part.LineSegment(V(-59.3, 43.9, 0), V(-59.3, 34.5, 0)), False)
sketch9.addGeometry(Part.LineSegment(V(-59.3, 34.5, 0), V(-42.7, 34.5, 0)), False)
add_polygon(sketch9, [(-56.1, 37.6), (-56.1, 40.7), (-46.6, 40.7), (-46.6, 37.6)])
sketch9.addConstraint(Sketcher.Constraint("Coincident", 0, 2, 1, 1))
sketch9.addConstraint(Sketcher.Constraint("Tangent", 1, 2, 2, 1))
sketch9.addConstraint(Sketcher.Constraint("Tangent", 2, 2, 3, 1))
sketch9.addConstraint(Sketcher.Constraint("Coincident", 3, 2, 4, 1))
sketch9.addConstraint(Sketcher.Constraint("Coincident", 4, 2, 5, 1))
sketch9.addConstraint(Sketcher.Constraint("Coincident", 5, 2, 6, 1))
sketch9.addConstraint(Sketcher.Constraint("Coincident", 6, 2, 0, 1))
sketch9.addConstraint(Sketcher.Constraint("Vertical", 0))
sketch9.addConstraint(Sketcher.Constraint("Horizontal", 1))
sketch9.addConstraint(Sketcher.Constraint("Horizontal", 4))
sketch9.addConstraint(Sketcher.Constraint("Vertical", 5))
sketch9.addConstraint(Sketcher.Constraint("Horizontal", 6))
sketch9.addConstraint(Sketcher.Constraint("Vertical", 7))
sketch9.addConstraint(Sketcher.Constraint("Horizontal", 8))
sketch9.addConstraint(Sketcher.Constraint("Vertical", 9))
sketch9.addConstraint(Sketcher.Constraint("Horizontal", 10))
sketch9.addConstraint(Sketcher.Constraint("Horizontal", 1, 2, 9, 2))
sketch9.addConstraint(Sketcher.Constraint("Radius", 2, Q("0.125 in")))
sketch9.addConstraint(Sketcher.Constraint("DistanceY", 5, 2, 5, 1, Q("0.37 in")))
sketch9.addConstraint(Sketcher.Constraint("DistanceY", 7, 1, 7, 2, Q("0.12 in")))
sketch9.addConstraint(Sketcher.Constraint("DistanceX", 8, 1, 8, 2, Q("0.375 in")))
sketch9.addConstraint(Sketcher.Constraint("DistanceY", 0, 1, 0, 2, Q("0.125 in")))
sketch9.addConstraint(Sketcher.Constraint("DistanceX", 4, 2, 7, 2, Q("0.125 in")))
sketch9.addConstraint(Sketcher.Constraint("DistanceY", 2, 2, 2, 3, Q("0.447098 mm")))
sketch9.addConstraint(Sketcher.Constraint("DistanceX", 1, 1, 1, 2, Q("0.738483 mm")))
sketch9.addConstraint(Sketcher.Constraint("DistanceX", 4, 2, 4, 1, Q("20.992457 mm")))
sketch9.addConstraint(Sketcher.Constraint("DistanceX", 2, 2, -1, 1, Q("38.77924 mm")))
sketch9.addConstraint(Sketcher.Constraint("DistanceY", -1, 1, 2, 3, Q("40.805326 mm")))
pad3 = doc.addObject("PartDesign::Pad", "Pad002")
body.addObject(pad3)
pad3.Profile = sketch9
pad3.Length = Q("0.23 in")
doc.recompute()

fillet4 = doc.addObject("PartDesign::Fillet", "Fillet003")
body.addObject(fillet4)
fillet4.Base = (pad3, edges_at(pad3, [(-46.575, 34.455, 2.921), (-59.275, 43.853, 2.921), (-59.275, 34.455, 2.921)]))
fillet4.Radius = Q("0.0625 in")
doc.recompute()

fillet5 = doc.addObject("PartDesign::Fillet", "Fillet004")
body.addObject(fillet5)
fillet5.Base = (fillet4, edges_at(fillet4, [(-38.282, 43.853, 2.921)]))
fillet5.Radius = Q("0.25 in")

doc.recompute()
